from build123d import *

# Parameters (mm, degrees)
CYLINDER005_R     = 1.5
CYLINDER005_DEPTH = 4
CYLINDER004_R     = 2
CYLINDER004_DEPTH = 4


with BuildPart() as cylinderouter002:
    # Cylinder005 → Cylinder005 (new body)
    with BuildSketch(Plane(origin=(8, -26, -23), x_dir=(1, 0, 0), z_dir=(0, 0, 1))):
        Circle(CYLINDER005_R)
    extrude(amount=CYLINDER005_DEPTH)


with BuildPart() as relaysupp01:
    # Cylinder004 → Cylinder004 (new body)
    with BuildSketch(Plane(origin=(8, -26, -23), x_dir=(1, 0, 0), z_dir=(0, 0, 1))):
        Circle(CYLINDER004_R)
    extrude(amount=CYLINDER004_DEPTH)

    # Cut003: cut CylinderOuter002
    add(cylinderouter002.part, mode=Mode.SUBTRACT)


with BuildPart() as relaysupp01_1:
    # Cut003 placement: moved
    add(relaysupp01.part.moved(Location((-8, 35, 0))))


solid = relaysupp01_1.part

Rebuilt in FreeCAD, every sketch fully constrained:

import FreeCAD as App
import Part
import Sketcher
from FreeCAD import Vector
Q = App.Units.Quantity

doc = App.newDocument("Part")
body = doc.addObject("PartDesign::Body", "Body")

# Sketch on XY plane
sketch1 = doc.addObject("Sketcher::SketchObject", "Sketch")
body.addObject(sketch1)
sketch1.AttachmentSupport = (doc.XY_Plane, [""])
sketch1.MapMode = "FlatFace"
sketch1.AttachmentOffset = App.Placement(Vector(0, 0, -23), App.Rotation())
sketch1.addGeometry(Part.Circle(Vector(8, -26, 0), Vector(0, 0, 1), 1.5), False)
sketch1.addConstraint(Sketcher.Constraint("Diameter", 0, Q("3 mm")))
sketch1.addConstraint(Sketcher.Constraint("DistanceX", -1, 1, 0, 3, Q("8 mm")))
sketch1.addConstraint(Sketcher.Constraint("DistanceY", 0, 3, -1, 1, Q("26 mm")))
pad1 = doc.addObject("PartDesign::Pad", "Pad")
body.addObject(pad1)
pad1.Profile = sketch1
pad1.Length = 4
body2 = doc.addObject("PartDesign::Body", "Body001")

# Sketch on XY plane
sketch2 = doc.addObject("Sketcher::SketchObject", "Sketch001")
body2.addObject(sketch2)
sketch2.AttachmentSupport = (doc.getObject("XY_Plane001"), [""])
sketch2.MapMode = "FlatFace"
sketch2.AttachmentOffset = App.Placement(Vector(0, 0, -23), App.Rotation())
sketch2.addGeometry(Part.Circle(Vector(8, -26, 0), Vector(0, 0, 1), 2), False)
sketch2.addConstraint(Sketcher.Constraint("Diameter", 0, Q("4 mm")))
sketch2.addConstraint(Sketcher.Constraint("DistanceX", -1, 1, 0, 3, Q("8 mm")))
sketch2.addConstraint(Sketcher.Constraint("DistanceY", 0, 3, -1, 1, Q("26 mm")))
pad2 = doc.addObject("PartDesign::Pad", "Pad001")
body2.addObject(pad2)
pad2.Profile = sketch2
pad2.Length = 4
doc.recompute()

boolean = doc.addObject("PartDesign::Boolean", "Boolean")
body2.addObject(boolean)
boolean.Type = "Cut"
boolean.addObjects([body])
body3 = doc.addObject("PartDesign::Body", "Body002")
doc.recompute()

body2.Placement = App.Placement(Vector(-8, 35, 0), App.Rotation(Vector(0, 0, 1), 0))
boolean2 = doc.addObject("PartDesign::Boolean", "Boolean001")
body3.addObject(boolean2)
boolean2.Type = "Fuse"
boolean2.addObjects([body2])

doc.recompute()
